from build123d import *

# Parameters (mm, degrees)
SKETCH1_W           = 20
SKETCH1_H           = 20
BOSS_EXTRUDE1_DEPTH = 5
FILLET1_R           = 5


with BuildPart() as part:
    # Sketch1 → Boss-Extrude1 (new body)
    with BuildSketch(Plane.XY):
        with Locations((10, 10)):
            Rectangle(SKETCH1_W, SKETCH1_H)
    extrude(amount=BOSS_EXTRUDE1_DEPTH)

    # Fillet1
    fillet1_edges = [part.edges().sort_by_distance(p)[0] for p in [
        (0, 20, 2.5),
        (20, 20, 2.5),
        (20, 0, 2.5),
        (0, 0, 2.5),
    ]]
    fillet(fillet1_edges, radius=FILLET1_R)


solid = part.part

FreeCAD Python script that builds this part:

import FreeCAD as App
import Part
import Sketcher

V = App.Vector


def edges_at(feature, points):
    """Names of the edges that pass closest to the given points."""
    edges = feature.Shape.Edges
    near = lambda p: min(range(len(edges)), key=lambda i: edges[i].distToShape(Part.Vertex(*p))[0])
    return sorted({f"Edge{near(p) + 1}" for p in points})


def add_polygon(sketch, points):
    """Adds a closed chain of lines whose ends are joined by coincident constraints."""
    first, n = sketch.GeometryCount, len(points)
    for a, b in zip(points, points[1:] + points[:1]):
        sketch.addGeometry(Part.LineSegment(App.Vector(*a, 0), App.Vector(*b, 0)), False)
    for i in range(n):
        sketch.addConstraint(Sketcher.Constraint("Coincident", first + i, 2, first + (i + 1) % n, 1))

doc = App.newDocument("Part")
body = doc.addObject("PartDesign::Body", "Body")

sketch1 = body.newObject("Sketcher::SketchObject", "Sketch")
sketch1.AttachmentSupport = (doc.getObject("XY_Plane"), [""])
sketch1.MapMode = "FlatFace"
add_polygon(sketch1, [(0, 20), (0, 0), (20, 0), (20, 20)])
sketch1.addConstraint([
    Sketcher.Constraint("Vertical", 0),
    Sketcher.Constraint("Horizontal", 1),
    Sketcher.Constraint("Vertical", 2),
    Sketcher.Constraint("Horizontal", 3),
    Sketcher.Constraint("Coincident", 0, 2, -1, 1),
    Sketcher.Constraint("Equal", 3, 0),
    Sketcher.Constraint("DistanceX", 1, 1, 1, 2, 20.0),
])
pad1 = body.newObject("PartDesign::Pad", "Pad")
pad1.Profile = sketch1
pad1.Length = 5
doc.recompute()

fillet = body.newObject("PartDesign::Fillet", "Fillet")
fillet.Base = (pad1, edges_at(pad1, [
    (0, 20, 2.5),
    (20, 20, 2.5),
    (20, 0, 2.5),
    (0, 0, 2.5),
]))
fillet.Radius = 5

doc.recompute()
